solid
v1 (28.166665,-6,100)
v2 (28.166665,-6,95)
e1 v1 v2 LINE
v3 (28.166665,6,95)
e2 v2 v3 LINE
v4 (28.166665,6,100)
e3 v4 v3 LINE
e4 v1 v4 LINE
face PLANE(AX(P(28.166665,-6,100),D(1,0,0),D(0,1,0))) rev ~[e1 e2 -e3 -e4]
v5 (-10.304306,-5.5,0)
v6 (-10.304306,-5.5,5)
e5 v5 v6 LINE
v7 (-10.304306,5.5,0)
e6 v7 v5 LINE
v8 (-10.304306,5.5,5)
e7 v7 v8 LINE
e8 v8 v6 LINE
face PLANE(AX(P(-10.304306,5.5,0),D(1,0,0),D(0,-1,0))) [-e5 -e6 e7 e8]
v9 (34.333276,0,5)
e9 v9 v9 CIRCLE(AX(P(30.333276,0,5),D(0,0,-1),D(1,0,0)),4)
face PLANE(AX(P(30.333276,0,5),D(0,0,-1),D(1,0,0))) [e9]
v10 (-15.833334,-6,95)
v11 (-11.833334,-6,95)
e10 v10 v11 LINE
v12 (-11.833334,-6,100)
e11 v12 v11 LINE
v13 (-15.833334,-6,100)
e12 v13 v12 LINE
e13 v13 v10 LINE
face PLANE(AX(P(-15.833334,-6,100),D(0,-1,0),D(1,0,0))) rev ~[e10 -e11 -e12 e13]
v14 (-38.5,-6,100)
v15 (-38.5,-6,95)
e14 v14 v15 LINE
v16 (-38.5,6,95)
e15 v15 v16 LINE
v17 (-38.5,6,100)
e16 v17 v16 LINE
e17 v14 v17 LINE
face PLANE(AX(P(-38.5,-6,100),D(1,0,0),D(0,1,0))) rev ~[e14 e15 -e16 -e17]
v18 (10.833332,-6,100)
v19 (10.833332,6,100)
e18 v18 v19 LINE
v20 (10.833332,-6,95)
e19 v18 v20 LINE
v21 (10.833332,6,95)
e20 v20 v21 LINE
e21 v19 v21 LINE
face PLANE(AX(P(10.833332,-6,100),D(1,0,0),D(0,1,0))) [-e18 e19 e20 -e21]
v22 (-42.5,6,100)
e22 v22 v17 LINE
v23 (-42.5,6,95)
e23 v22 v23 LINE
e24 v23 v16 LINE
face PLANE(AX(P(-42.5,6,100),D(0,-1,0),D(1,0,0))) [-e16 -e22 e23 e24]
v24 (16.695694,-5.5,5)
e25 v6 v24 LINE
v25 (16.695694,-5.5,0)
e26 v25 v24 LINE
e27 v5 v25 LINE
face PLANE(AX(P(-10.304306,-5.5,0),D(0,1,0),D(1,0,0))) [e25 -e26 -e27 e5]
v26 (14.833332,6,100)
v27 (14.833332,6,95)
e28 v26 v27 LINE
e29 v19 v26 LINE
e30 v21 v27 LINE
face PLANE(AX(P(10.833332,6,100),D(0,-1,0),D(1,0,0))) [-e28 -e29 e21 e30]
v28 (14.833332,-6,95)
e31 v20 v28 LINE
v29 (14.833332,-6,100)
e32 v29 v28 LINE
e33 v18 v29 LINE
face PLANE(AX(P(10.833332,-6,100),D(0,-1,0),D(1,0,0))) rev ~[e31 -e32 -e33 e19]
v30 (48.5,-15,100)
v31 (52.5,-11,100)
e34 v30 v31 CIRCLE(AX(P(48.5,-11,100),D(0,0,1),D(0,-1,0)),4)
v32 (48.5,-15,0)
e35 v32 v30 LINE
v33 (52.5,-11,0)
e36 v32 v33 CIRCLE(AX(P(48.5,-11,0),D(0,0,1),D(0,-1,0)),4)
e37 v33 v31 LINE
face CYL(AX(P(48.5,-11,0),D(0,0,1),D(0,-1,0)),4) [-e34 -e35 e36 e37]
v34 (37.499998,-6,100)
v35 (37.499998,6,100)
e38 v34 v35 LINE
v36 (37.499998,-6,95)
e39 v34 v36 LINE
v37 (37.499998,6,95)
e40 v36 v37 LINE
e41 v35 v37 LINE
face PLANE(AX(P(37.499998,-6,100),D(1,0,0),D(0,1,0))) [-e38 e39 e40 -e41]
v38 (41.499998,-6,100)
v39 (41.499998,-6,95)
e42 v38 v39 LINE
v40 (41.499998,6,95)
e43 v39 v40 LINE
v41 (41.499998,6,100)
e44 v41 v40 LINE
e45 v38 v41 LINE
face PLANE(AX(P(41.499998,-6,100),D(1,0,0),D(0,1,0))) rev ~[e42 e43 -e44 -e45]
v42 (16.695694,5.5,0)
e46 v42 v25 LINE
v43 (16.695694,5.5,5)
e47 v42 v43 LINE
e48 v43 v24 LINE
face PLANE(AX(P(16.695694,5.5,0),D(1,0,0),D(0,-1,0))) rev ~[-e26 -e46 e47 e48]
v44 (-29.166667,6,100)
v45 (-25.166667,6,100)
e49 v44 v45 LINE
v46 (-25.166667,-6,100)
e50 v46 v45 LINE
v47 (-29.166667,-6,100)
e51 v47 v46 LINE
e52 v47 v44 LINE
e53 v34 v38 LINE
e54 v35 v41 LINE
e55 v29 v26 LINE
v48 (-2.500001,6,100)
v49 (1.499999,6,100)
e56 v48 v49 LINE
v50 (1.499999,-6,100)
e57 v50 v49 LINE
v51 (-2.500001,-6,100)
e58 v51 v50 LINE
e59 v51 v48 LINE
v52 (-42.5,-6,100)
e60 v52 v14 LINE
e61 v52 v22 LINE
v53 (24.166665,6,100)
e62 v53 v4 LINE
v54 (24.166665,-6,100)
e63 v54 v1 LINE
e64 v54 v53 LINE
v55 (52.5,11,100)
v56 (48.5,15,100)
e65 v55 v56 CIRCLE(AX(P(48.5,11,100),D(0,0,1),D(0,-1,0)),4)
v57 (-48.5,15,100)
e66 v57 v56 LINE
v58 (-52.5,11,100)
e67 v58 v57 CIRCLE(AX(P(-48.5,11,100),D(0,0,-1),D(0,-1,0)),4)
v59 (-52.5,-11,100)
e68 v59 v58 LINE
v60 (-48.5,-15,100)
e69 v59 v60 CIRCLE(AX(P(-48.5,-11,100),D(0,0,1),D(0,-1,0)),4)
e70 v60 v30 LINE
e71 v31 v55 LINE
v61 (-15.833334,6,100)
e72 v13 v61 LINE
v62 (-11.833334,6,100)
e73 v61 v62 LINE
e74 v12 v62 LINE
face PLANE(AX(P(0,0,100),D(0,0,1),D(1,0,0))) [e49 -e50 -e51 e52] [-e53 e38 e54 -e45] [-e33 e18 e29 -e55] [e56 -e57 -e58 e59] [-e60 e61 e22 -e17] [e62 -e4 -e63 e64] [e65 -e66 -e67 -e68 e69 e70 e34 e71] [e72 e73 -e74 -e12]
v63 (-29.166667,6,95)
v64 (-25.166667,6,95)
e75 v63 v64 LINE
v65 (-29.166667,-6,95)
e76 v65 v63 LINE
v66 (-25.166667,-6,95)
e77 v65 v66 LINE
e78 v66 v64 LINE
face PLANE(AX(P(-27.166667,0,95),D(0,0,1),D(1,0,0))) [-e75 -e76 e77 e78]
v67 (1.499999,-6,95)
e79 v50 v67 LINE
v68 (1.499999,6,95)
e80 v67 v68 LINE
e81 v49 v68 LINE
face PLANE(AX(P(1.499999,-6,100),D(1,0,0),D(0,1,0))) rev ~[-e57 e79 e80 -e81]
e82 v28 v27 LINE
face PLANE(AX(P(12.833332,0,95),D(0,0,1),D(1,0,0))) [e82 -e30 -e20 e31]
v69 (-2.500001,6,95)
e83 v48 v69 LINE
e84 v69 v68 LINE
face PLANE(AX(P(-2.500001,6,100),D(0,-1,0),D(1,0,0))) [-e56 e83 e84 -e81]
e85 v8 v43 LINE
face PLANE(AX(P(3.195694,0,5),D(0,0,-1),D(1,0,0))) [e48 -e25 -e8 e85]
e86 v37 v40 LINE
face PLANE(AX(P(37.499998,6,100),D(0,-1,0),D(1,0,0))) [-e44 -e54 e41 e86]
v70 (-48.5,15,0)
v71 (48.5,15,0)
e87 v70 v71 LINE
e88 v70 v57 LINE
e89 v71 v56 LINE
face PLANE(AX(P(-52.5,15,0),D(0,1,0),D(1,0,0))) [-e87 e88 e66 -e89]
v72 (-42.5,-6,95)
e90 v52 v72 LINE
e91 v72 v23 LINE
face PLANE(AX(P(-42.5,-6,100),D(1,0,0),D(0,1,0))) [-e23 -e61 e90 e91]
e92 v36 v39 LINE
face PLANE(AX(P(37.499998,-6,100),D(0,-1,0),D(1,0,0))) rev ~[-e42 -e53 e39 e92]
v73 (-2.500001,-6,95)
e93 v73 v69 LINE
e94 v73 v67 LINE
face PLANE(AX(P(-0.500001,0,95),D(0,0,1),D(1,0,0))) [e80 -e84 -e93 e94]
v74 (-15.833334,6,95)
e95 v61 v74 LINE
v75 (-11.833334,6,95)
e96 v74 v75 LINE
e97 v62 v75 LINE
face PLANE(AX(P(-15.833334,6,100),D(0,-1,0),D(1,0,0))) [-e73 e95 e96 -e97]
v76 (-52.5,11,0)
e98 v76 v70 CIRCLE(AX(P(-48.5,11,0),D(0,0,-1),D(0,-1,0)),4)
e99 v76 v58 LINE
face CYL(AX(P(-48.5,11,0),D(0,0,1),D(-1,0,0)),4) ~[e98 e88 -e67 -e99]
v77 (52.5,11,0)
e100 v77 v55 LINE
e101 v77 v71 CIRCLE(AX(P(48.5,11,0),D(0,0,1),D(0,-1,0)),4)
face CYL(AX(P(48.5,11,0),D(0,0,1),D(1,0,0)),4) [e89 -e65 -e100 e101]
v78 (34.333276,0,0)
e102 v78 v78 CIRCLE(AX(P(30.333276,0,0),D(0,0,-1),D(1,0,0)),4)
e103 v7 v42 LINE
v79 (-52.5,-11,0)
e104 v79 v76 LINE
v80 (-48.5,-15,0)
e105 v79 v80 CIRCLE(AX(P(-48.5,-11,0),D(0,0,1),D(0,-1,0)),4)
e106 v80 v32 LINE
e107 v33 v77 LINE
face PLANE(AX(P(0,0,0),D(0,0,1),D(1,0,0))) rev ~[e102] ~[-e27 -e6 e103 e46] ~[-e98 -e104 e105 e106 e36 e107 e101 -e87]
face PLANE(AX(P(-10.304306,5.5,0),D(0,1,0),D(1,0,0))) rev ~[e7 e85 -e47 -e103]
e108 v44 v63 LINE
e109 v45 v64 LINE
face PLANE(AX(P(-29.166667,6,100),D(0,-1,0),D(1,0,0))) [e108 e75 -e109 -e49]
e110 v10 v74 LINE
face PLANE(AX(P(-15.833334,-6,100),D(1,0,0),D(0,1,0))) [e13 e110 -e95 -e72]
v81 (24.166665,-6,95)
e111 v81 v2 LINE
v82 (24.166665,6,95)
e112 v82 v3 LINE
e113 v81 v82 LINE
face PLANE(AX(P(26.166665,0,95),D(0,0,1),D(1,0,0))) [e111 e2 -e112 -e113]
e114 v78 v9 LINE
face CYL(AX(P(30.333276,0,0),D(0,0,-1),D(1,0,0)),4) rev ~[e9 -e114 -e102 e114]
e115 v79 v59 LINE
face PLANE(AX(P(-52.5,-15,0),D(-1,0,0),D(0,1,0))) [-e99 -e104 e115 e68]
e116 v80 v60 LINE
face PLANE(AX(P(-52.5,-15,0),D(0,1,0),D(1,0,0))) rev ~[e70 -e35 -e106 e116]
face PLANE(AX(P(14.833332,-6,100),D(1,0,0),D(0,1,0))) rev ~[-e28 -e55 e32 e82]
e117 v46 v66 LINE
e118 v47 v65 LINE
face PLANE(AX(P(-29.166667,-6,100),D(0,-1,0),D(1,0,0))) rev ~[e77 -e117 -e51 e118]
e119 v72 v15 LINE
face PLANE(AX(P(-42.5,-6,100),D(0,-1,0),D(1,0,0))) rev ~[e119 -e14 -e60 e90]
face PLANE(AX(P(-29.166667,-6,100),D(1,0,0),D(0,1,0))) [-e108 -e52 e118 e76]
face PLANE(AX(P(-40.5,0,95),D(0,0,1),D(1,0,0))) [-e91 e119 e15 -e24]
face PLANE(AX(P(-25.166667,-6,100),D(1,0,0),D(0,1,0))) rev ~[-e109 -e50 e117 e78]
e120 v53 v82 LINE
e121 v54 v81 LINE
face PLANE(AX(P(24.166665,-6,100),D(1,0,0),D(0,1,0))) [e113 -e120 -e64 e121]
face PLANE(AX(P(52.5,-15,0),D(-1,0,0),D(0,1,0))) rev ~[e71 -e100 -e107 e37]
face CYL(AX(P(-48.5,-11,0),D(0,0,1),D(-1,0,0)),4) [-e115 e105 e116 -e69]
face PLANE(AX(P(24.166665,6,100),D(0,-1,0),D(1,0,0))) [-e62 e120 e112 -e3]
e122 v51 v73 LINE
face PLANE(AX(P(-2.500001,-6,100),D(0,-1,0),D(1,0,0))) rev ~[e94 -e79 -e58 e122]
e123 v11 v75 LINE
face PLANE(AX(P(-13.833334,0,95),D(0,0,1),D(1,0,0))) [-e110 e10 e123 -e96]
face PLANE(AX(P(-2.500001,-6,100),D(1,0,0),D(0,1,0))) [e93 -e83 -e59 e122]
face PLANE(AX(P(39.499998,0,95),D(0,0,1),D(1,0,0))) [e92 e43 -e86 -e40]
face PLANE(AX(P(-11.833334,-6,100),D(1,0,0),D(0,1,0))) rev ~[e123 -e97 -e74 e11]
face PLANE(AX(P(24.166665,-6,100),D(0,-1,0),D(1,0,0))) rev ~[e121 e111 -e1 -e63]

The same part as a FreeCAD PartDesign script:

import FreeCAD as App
import Part
import Sketcher


def edges_at(feature, points):
    """Names of the edges that pass closest to the given points."""
    edges = feature.Shape.Edges
    near = lambda p: min(range(len(edges)), key=lambda i: edges[i].distToShape(Part.Vertex(*p))[0])
    return sorted({f"Edge{near(p) + 1}" for p in points})


def add_polygon(sketch, points):
    """Adds a closed chain of lines whose ends are joined by coincident constraints."""
    first, n = sketch.GeometryCount, len(points)
    for a, b in zip(points, points[1:] + points[:1]):
        sketch.addGeometry(Part.LineSegment(App.Vector(*a, 0), App.Vector(*b, 0)), False)
    for i in range(n):
        sketch.addConstraint(Sketcher.Constraint("Coincident", first + i, 2, first + (i + 1) % n, 1))

doc = App.newDocument("Part")
body = doc.addObject("PartDesign::Body", "Body")

# Sketch on XY plane
sketch1 = body.newObject("Sketcher::SketchObject", "Sketch")
sketch1.AttachmentSupport = (doc.getObject("XY_Plane"), [""])
sketch1.MapMode = "FlatFace"
add_polygon(sketch1, [(-52, 15), (-52, -15), (52, -15), (52, 15)])  # lines 0-3
sketch1.addConstraint(Sketcher.Constraint("Vertical", 0))
sketch1.addConstraint(Sketcher.Constraint("Horizontal", 1))
sketch1.addConstraint(Sketcher.Constraint("Vertical", 2))
sketch1.addConstraint(Sketcher.Constraint("Horizontal", 3))
sketch1.addConstraint(Sketcher.Constraint("Symmetric", 0, 2, 2, 2, -1, 1))
sketch1.addConstraint(Sketcher.Constraint("DistanceX", 1, 1, 1, 2, 105.0))
sketch1.addConstraint(Sketcher.Constraint("DistanceY", 0, 2, 0, 1, 30.0))
pad1 = body.newObject("PartDesign::Pad", "Pad")
pad1.Profile = sketch1
pad1.Length = 100
doc.recompute()

fillet = body.newObject("PartDesign::Fillet", "Fillet")
fillet.Base = (pad1, edges_at(pad1, [
    (52.5, 15, 50),
    (52.5, -15, 50),
    (-52.5, 15, 50),
    (-52.5, -15, 50),
]))
fillet.Radius = 4

# Sketch on XY plane
sketch2 = body.newObject("Sketcher::SketchObject", "Sketch001")
sketch2.AttachmentSupport = (doc.getObject("XY_Plane"), [""])
sketch2.MapMode = "FlatFace"
sketch2.AttachmentOffset = App.Placement(App.Vector(0, 0, 100), App.Rotation())
add_polygon(sketch2, [(-42.5, 6), (-42.5, -6), (-38.5, -6), (-38.5, 6)])  # lines 0-3
sketch2.addConstraint(Sketcher.Constraint("Vertical", 0))
sketch2.addConstraint(Sketcher.Constraint("Horizontal", 1))
sketch2.addConstraint(Sketcher.Constraint("Vertical", 2))
sketch2.addConstraint(Sketcher.Constraint("Horizontal", 3))
sketch2.addConstraint(Sketcher.Constraint("DistanceX", 1, 1, 1, 2, 4.0))
sketch2.addConstraint(Sketcher.Constraint("DistanceY", 0, 2, 0, 1, 12.0))
sketch2.addConstraint(Sketcher.Constraint("DistanceY", 0, 2, -1, 1, 6.0))
sketch2.addConstraint(Sketcher.Constraint("DistanceX", 0, 2, -1, 1, 42.5))
pocket1 = body.newObject("PartDesign::Pocket", "Pocket")
pocket1.Profile = sketch2
pocket1.Length = 5
doc.recompute()

linearpattern = body.newObject("PartDesign::LinearPattern", "LinearPattern")
linearpattern.Originals = [pocket1]
linearpattern.Direction = (doc.getObject("X_Axis"), [""])
linearpattern.Mode = "offset"
linearpattern.Offset = 13.333333
linearpattern.Occurrences = 7
body.Tip = linearpattern

# Sketch on XY plane
sketch3 = body.newObject("Sketcher::SketchObject", "Sketch002")
sketch3.AttachmentSupport = (doc.getObject("XY_Plane"), [""])
sketch3.MapMode = "FlatFace"
sketch3.addGeometry(Part.Circle(App.Vector(30.3, 0, 0), App.Vector(0, 0, 1), 4), False)  # 0
add_polygon(sketch3, [(-10.3, -5.5), (-10.3, 5.5), (16.7, 5.5), (16.7, -5.5)])  # lines 1-4
sketch3.addConstraint(Sketcher.Constraint("Vertical", 1))
sketch3.addConstraint(Sketcher.Constraint("Horizontal", 2))
sketch3.addConstraint(Sketcher.Constraint("Vertical", 3))
sketch3.addConstraint(Sketcher.Constraint("Horizontal", 4))
sketch3.addConstraint(Sketcher.Constraint("PointOnObject", 0, 3, -1))
sketch3.addConstraint(Sketcher.Constraint("Diameter", 0, 8.0))
sketch3.addConstraint(Sketcher.Constraint("DistanceX", 2, 1, 2, 2, 27.0))
sketch3.addConstraint(Sketcher.Constraint("DistanceY", 1, 1, 1, 2, 11.0))
sketch3.addConstraint(Sketcher.Constraint("DistanceY", -1, 1, 1, 2, 5.5))
sketch3.addConstraint(Sketcher.Constraint("DistanceX", -1, 1, 0, 3, 30.333276))
sketch3.addConstraint(Sketcher.Constraint("DistanceX", 1, 2, -1, 1, 10.304306))
pocket2 = body.newObject("PartDesign::Pocket", "Pocket001")
pocket2.Profile = sketch3
pocket2.Length = 5
pocket2.Reversed = True

doc.recompute()
